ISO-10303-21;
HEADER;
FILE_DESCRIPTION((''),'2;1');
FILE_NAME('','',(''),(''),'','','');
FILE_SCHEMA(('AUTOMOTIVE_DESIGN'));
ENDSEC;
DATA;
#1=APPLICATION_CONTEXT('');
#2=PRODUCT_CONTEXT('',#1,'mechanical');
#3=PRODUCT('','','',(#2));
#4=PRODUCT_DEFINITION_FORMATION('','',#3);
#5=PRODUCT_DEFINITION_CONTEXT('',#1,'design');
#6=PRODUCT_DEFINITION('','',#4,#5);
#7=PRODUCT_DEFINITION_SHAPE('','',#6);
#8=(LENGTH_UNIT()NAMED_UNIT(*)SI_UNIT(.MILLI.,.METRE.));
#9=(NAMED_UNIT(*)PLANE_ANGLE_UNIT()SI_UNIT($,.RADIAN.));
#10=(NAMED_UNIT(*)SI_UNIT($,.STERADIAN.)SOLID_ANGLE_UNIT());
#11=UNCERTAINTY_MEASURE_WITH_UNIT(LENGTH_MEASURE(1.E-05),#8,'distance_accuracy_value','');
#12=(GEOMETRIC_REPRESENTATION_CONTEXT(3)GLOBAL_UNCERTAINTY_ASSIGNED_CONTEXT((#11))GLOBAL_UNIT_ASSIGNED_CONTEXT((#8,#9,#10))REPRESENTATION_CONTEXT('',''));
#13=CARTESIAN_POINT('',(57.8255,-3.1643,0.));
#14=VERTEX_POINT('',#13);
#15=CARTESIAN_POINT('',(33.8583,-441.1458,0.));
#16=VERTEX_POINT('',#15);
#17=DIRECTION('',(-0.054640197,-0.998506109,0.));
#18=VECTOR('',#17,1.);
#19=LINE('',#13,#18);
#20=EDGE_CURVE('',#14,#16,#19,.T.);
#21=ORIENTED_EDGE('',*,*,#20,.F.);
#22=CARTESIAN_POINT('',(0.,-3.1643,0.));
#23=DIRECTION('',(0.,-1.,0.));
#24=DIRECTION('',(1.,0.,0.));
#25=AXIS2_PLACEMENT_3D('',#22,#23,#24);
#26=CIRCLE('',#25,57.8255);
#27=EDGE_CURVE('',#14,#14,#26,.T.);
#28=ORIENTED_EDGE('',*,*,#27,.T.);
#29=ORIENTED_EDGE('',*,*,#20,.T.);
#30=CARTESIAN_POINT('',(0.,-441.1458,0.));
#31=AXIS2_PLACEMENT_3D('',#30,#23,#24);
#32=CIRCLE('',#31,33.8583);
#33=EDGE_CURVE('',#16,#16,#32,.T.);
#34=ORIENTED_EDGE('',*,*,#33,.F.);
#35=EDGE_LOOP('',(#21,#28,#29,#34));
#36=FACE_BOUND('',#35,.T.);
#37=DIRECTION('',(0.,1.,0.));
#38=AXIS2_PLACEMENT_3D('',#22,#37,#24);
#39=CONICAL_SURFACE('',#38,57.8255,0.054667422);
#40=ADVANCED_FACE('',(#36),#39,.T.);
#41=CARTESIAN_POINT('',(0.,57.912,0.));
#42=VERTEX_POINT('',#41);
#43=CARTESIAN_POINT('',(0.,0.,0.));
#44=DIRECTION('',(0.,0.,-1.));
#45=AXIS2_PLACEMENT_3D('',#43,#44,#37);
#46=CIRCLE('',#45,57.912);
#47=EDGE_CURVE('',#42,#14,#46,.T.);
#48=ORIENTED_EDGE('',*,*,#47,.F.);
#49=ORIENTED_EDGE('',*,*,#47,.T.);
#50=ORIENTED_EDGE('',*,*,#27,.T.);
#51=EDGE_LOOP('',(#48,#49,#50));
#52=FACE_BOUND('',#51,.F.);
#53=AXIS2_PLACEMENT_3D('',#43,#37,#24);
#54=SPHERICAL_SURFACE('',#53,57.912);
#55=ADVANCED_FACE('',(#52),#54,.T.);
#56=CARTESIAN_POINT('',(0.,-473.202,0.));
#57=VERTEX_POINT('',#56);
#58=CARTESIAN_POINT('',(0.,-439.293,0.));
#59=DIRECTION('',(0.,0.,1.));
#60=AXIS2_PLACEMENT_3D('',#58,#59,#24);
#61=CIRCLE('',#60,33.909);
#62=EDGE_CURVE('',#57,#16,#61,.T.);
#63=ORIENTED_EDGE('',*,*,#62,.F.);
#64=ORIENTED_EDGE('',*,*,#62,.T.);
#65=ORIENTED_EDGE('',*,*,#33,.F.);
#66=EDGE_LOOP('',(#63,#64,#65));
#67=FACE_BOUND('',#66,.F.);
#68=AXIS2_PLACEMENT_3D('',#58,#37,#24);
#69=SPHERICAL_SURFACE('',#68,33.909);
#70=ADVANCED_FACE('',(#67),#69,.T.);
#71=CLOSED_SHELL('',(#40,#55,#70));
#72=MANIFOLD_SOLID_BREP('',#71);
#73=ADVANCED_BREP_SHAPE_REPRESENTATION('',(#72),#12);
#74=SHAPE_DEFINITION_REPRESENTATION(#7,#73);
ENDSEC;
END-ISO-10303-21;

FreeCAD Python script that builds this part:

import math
import FreeCAD as App
import Part
import Sketcher
Q = App.Units.Quantity

doc = App.newDocument("Part")
body = doc.addObject("PartDesign::Body", "Body")

# Sketch on XY plane
sketch1 = body.newObject("Sketcher::SketchObject", "Sketch")
sketch1.AttachmentSupport = (doc.getObject("XY_Plane"), [""])
sketch1.MapMode = "FlatFace"
sketch1.addGeometry([
    Part.ArcOfCircle(Part.Circle(App.Vector(0, 0, 0), App.Vector(0, 0, 1), 57.912), math.radians(-3.132189), math.radians(90)),
    Part.LineSegment(App.Vector(0, 57.912, 0), App.Vector(0, -473.202, 0)),
    Part.ArcOfCircle(Part.Circle(App.Vector(0, -439.293, 0), App.Vector(0, 0, 1), 33.909), math.radians(-90), math.radians(-3.132226)),
    Part.LineSegment(App.Vector(33.8583, -441.1458, 0), App.Vector(57.8255, -3.1643, 0)),
], False)
sketch1.addConstraint([
    Sketcher.Constraint("Coincident", 0, 2, 1, 1),
    Sketcher.Constraint("Coincident", 1, 2, 2, 1),
    Sketcher.Constraint("Tangent", 2, 2, 3, 1),
    Sketcher.Constraint("Tangent", 3, 2, 0, 1),
    Sketcher.Constraint("Vertical", 1),
    Sketcher.Constraint("Coincident", 0, 3, -1, 1),
    Sketcher.Constraint("PointOnObject", 2, 3, -2),
    Sketcher.Constraint("PointOnObject", 0, 2, -2),
    Sketcher.Constraint("Radius", 0, Q("2.28 in")),
    Sketcher.Constraint("Radius", 2, Q("1.335 in")),
    Sketcher.Constraint("DistanceY", 1, 2, -1, 1, Q("18.63 in")),
])
revolution = body.newObject("PartDesign::Revolution", "Revolution")
revolution.Profile = sketch1
revolution.ReferenceAxis = (sketch1, ["V_Axis"])
revolution.Angle = 360

doc.recompute()
